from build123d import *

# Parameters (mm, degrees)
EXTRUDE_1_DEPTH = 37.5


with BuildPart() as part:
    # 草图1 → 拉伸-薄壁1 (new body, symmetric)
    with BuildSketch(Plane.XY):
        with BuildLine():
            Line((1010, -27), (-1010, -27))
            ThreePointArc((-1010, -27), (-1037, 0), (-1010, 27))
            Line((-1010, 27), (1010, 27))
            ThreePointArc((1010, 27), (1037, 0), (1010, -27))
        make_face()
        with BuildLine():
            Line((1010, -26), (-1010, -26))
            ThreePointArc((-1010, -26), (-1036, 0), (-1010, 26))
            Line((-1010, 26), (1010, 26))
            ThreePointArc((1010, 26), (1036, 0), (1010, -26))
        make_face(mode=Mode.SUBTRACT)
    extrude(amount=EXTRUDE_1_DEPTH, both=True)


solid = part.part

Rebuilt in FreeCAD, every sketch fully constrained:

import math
import FreeCAD as App
import Part
import Sketcher
Q = App.Units.Quantity

doc = App.newDocument("Part")
params = doc.addObject("Spreadsheet::Sheet", "Params")
for row, (alias, value) in enumerate([
    ("sketch1_radius", "27 mm"),
    ("sketch1_radius2", "26 mm"),
    ("sketch1_width", "2020 mm"),
    ("pad1_length", "75 mm"),
], start=1):
    params.set(f"A{row}", alias)
    params.set(f"B{row}", "=" + value)
    params.setAlias(f"B{row}", alias)

body = doc.addObject("PartDesign::Body", "Body")

# Sketch on XY plane
sketch1 = body.newObject("Sketcher::SketchObject", "Sketch")
sketch1.AttachmentSupport = (doc.getObject("XY_Plane"), [""])
sketch1.MapMode = "FlatFace"
sketch1.addGeometry([
    Part.LineSegment(App.Vector(-1010, -27, 0), App.Vector(1010, -27, 0)),  # 0
    Part.ArcOfCircle(Part.Circle(App.Vector(1010, 0, 0), App.Vector(0, 0, 1), 27), math.radians(-90), math.radians(90)),  # 1
    Part.LineSegment(App.Vector(1010, 27, 0), App.Vector(-1010, 27, 0)),  # 2
    Part.ArcOfCircle(Part.Circle(App.Vector(-1010, 0, 0), App.Vector(0, 0, 1), 27), math.radians(90), math.radians(270)),  # 3
    Part.LineSegment(App.Vector(1010, -26, 0), App.Vector(-1010, -26, 0)),  # 4
    Part.ArcOfCircle(Part.Circle(App.Vector(-1010, 0, 0), App.Vector(0, 0, 1), 26), math.radians(90), math.radians(270)),  # 5
    Part.LineSegment(App.Vector(-1010, 26, 0), App.Vector(1010, 26, 0)),  # 6
    Part.ArcOfCircle(Part.Circle(App.Vector(1010, 0, 0), App.Vector(0, 0, 1), 26), math.radians(-90), math.radians(90)),  # 7
], False)
sketch1.addConstraint([
    Sketcher.Constraint("Tangent", 0, 2, 1, 1),
    Sketcher.Constraint("Tangent", 1, 2, 2, 1),
    Sketcher.Constraint("Tangent", 2, 2, 3, 1),
    Sketcher.Constraint("Tangent", 3, 2, 0, 1),
    Sketcher.Constraint("Tangent", 4, 2, 5, 2),
    Sketcher.Constraint("Tangent", 5, 1, 6, 1),
    Sketcher.Constraint("Tangent", 6, 2, 7, 2),
    Sketcher.Constraint("Tangent", 7, 1, 4, 1),
    Sketcher.Constraint("Horizontal", 0),
    Sketcher.Constraint("Horizontal", 2),
    Sketcher.Constraint("Horizontal", 4),
    Sketcher.Constraint("Horizontal", 6),
    Sketcher.Constraint("Coincident", 5, 3, 3, 3),
    Sketcher.Constraint("Symmetric", 1, 3, 3, 3, -1, 1),
    Sketcher.Constraint("Vertical", 7, 3, 0, 2),
    Sketcher.Constraint("Radius", 1, Q("27 mm")),
    Sketcher.Constraint("Radius", 5, Q("26 mm")),
    Sketcher.Constraint("DistanceX", 0, 1, 0, 2, Q("2020 mm")),
])
sketch1.setExpression("Constraints[15]", "Params.sketch1_radius")
sketch1.setExpression("Constraints[16]", "Params.sketch1_radius2")
sketch1.setExpression("Constraints[17]", "Params.sketch1_width")
pad1 = body.newObject("PartDesign::Pad", "Pad")
pad1.Profile = sketch1
pad1.setExpression("Length", "Params.pad1_length")
pad1.Midplane = True

doc.recompute()
